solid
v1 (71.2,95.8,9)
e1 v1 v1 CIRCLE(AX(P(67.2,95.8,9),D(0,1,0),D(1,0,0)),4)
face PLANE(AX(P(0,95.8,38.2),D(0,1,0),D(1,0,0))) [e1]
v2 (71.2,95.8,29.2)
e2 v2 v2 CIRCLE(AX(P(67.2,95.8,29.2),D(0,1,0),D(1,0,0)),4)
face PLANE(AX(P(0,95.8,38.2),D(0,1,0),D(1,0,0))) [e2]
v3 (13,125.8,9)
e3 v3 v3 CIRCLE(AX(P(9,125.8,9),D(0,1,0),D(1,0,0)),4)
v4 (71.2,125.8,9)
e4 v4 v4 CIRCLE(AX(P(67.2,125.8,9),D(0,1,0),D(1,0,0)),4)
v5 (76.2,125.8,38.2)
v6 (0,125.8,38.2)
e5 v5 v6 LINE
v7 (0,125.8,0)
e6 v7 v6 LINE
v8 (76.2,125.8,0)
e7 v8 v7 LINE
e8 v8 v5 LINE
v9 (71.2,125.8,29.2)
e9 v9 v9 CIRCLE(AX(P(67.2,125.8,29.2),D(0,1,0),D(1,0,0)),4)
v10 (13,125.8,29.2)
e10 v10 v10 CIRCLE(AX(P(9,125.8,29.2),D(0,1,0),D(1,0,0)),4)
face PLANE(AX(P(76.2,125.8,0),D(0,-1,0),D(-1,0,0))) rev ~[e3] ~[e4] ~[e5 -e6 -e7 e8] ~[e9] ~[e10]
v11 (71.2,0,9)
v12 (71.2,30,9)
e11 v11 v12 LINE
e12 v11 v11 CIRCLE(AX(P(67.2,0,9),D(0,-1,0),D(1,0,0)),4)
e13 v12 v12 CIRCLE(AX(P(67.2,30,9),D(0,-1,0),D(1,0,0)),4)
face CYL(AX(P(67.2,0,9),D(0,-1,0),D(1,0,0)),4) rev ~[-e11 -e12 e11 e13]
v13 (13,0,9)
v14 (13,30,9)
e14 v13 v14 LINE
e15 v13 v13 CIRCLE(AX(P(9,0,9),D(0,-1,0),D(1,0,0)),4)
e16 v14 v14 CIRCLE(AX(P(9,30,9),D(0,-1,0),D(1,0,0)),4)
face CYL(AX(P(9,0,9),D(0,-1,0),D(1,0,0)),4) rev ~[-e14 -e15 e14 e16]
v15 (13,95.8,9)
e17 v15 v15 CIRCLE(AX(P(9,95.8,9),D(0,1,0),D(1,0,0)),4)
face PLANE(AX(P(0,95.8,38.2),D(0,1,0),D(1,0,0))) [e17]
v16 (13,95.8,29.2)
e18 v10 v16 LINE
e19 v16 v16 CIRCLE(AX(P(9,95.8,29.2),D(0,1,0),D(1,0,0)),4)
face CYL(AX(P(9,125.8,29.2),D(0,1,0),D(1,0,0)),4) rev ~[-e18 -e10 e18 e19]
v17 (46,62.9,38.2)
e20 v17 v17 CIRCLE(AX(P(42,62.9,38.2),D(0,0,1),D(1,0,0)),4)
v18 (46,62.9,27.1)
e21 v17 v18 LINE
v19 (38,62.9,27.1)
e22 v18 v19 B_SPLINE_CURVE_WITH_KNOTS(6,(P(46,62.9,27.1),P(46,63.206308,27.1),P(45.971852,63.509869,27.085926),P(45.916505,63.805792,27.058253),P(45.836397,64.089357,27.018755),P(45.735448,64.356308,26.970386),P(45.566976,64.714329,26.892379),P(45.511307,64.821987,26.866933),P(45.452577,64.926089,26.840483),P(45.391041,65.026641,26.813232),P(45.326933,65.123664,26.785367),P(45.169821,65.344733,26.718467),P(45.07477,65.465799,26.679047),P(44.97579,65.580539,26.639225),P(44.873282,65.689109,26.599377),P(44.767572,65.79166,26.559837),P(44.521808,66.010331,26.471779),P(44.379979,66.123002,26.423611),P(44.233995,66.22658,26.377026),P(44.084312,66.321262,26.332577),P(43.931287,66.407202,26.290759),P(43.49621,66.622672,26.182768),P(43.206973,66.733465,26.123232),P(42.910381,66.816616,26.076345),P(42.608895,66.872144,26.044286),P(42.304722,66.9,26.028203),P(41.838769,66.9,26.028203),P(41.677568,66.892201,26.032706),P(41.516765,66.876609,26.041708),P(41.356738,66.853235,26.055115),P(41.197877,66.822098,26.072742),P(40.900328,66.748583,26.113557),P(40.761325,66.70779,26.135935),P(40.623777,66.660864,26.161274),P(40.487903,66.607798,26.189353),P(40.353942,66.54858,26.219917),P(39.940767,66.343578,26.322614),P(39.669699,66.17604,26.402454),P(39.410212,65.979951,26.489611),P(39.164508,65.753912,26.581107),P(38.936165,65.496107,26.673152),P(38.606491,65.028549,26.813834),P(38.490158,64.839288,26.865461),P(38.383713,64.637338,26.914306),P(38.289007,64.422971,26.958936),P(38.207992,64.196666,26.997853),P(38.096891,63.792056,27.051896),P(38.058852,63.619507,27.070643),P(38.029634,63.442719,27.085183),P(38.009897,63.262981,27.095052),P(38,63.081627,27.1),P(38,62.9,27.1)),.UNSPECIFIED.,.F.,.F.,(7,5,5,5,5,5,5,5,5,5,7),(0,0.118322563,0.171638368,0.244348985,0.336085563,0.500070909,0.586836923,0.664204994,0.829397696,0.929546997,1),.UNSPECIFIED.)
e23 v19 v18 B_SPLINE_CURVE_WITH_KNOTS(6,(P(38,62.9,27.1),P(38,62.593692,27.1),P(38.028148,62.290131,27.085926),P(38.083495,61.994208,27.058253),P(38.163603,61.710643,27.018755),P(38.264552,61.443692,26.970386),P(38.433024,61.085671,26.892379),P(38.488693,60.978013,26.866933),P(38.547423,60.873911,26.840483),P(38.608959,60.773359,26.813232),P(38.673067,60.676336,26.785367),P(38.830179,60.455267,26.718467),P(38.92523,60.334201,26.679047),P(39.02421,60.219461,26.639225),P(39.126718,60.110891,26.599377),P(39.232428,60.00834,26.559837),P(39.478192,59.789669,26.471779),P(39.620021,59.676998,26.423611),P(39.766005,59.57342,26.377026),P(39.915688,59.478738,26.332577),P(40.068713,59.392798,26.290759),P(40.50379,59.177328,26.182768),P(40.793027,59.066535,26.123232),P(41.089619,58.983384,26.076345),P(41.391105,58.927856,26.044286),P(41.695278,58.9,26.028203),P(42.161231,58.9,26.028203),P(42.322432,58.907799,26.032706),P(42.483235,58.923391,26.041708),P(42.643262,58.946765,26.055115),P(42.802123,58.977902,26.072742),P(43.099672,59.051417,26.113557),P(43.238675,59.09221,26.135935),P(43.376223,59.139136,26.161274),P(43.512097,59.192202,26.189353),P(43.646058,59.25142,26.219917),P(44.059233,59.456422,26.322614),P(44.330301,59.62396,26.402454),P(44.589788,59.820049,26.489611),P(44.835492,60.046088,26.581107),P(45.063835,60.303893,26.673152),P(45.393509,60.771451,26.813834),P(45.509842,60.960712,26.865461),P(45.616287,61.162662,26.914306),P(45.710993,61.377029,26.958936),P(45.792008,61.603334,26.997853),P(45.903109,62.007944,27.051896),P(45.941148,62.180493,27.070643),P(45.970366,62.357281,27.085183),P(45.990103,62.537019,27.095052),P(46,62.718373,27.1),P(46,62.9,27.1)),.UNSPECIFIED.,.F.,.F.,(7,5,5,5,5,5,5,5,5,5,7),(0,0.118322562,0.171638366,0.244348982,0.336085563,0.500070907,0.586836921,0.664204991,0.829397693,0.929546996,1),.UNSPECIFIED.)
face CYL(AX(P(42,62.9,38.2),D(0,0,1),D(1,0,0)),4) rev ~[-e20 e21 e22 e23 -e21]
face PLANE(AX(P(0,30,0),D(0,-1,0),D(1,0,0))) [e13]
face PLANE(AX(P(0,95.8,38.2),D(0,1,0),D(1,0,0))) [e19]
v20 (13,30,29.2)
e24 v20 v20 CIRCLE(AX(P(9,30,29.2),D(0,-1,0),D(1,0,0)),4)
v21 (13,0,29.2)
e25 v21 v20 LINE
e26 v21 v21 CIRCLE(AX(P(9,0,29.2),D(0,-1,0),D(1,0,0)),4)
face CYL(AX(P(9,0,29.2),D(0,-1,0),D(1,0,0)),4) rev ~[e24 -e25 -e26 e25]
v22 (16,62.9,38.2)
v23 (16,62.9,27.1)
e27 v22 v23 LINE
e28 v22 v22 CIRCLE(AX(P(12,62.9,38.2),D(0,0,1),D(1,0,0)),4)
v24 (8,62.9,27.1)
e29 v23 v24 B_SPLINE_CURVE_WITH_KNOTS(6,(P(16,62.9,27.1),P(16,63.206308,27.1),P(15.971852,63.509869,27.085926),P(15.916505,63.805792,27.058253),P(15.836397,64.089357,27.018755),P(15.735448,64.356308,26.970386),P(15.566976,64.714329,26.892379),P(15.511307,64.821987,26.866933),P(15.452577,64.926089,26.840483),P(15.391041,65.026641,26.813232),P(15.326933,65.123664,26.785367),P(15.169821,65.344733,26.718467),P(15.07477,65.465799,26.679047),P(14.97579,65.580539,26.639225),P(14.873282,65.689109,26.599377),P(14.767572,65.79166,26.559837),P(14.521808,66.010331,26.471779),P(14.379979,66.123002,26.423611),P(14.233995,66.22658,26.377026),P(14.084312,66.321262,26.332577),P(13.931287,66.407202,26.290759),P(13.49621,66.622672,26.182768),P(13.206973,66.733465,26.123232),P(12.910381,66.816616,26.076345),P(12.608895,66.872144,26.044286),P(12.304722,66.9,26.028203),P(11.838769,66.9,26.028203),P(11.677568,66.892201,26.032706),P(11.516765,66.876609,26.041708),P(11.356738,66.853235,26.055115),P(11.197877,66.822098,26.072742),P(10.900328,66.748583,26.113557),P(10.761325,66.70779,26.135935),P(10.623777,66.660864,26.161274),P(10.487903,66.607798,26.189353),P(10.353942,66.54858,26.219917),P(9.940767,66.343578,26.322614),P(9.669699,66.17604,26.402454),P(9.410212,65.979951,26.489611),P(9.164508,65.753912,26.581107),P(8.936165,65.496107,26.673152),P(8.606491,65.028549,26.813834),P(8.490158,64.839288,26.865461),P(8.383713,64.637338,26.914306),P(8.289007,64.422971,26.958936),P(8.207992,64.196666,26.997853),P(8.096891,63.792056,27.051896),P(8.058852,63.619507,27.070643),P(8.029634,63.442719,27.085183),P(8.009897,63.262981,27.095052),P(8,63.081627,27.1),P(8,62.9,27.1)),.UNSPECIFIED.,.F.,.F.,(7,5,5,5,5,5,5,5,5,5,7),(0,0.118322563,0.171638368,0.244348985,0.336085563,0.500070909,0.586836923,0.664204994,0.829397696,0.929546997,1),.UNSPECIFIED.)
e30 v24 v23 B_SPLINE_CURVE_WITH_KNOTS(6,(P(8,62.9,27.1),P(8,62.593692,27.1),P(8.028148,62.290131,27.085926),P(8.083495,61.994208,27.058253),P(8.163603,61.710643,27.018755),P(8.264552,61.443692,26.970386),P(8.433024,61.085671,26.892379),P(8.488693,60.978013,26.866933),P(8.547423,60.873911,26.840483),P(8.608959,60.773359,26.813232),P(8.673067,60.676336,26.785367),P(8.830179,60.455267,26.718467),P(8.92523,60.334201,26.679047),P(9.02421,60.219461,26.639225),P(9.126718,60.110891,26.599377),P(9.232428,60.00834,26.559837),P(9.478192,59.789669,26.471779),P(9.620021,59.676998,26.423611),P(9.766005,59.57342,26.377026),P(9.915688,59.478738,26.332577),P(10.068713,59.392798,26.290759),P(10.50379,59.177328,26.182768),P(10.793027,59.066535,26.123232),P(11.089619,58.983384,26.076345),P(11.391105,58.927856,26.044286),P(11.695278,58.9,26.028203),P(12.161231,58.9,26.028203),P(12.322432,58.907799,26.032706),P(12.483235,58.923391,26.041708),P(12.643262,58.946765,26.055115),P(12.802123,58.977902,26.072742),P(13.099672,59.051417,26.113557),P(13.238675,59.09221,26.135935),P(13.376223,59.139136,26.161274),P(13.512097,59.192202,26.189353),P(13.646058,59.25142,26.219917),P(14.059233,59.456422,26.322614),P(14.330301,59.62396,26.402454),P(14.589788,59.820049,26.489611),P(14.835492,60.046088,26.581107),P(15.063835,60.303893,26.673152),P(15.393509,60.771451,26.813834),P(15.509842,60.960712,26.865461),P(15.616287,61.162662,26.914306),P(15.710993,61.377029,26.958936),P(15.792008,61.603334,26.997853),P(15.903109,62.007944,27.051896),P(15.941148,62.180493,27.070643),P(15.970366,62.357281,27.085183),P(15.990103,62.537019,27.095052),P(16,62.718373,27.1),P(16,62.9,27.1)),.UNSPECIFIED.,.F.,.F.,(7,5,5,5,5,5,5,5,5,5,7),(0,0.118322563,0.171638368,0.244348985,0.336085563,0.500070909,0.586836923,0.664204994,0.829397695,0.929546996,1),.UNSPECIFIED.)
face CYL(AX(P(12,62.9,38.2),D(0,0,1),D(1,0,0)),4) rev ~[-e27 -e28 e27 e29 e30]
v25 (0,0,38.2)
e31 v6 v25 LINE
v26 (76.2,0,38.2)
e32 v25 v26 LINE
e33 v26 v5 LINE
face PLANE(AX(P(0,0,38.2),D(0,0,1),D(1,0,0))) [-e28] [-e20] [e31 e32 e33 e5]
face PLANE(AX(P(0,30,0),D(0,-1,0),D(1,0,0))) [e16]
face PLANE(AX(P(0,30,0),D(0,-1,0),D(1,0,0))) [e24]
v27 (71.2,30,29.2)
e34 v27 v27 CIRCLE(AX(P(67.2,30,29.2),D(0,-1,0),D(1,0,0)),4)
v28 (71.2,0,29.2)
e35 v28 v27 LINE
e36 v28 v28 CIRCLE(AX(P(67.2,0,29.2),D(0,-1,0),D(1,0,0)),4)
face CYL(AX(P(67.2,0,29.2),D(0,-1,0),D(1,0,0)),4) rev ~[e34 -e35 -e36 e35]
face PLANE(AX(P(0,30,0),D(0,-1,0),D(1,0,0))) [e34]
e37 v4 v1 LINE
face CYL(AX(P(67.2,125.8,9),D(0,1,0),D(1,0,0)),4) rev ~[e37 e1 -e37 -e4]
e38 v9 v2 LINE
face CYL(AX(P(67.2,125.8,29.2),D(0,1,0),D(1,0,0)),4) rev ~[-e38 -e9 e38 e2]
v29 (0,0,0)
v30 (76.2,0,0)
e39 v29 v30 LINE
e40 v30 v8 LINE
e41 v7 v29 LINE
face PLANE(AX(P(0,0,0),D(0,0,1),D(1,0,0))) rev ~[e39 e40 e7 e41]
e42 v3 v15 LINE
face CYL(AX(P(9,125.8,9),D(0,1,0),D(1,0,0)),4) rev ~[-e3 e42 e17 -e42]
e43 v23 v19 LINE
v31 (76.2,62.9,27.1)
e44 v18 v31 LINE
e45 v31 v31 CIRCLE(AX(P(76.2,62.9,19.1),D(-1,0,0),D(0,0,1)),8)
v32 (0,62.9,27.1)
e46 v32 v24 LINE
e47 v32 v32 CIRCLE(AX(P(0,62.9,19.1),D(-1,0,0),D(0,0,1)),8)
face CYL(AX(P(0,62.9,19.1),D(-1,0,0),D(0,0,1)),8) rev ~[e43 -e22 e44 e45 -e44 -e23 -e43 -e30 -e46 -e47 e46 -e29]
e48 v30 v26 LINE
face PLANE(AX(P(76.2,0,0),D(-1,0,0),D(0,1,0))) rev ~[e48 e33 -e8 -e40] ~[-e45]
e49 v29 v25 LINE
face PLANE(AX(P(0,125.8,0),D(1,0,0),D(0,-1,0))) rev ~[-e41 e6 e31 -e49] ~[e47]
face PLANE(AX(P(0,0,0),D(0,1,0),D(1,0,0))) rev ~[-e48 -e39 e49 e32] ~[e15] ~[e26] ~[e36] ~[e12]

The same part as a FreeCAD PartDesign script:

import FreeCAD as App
import Part
import Sketcher

V = App.Vector

doc = App.newDocument("Part")
body = doc.addObject("PartDesign::Body", "Body")

# Sketch on XY plane
sketch1 = body.newObject("Sketcher::SketchObject", "Sketch")
sketch1.AttachmentSupport = (doc.getObject("XY_Plane"), [""])
sketch1.MapMode = "FlatFace"
sketch1.addGeometry([
    Part.LineSegment(V(0, 126, 0), V(0, 0, 0)),
    Part.LineSegment(V(0, 0, 0), V(76, 0, 0)),
    Part.LineSegment(V(76, 0, 0), V(76, 126, 0)),
    Part.LineSegment(V(76, 126, 0), V(0, 126, 0)),
], False)
sketch1.addConstraint([
    Sketcher.Constraint("Coincident", 0, 2, 1, 1),
    Sketcher.Constraint("Coincident", 1, 2, 2, 1),
    Sketcher.Constraint("Coincident", 2, 2, 3, 1),
    Sketcher.Constraint("Coincident", 3, 2, 0, 1),
    Sketcher.Constraint("Vertical", 0),
    Sketcher.Constraint("Horizontal", 1),
    Sketcher.Constraint("Vertical", 2),
    Sketcher.Constraint("Horizontal", 3),
    Sketcher.Constraint("Coincident", 0, 2, -1, 1),
    Sketcher.Constraint("DistanceX", 1, 1, 1, 2, 76.2),
    Sketcher.Constraint("DistanceY", 0, 2, 0, 1, 125.8),
])
pad1 = body.newObject("PartDesign::Pad", "Pad")
pad1.Profile = sketch1
pad1.Length = 38.2

# Sketch on XY plane
sketch2 = body.newObject("Sketcher::SketchObject", "Sketch001")
sketch2.AttachmentSupport = (doc.getObject("XY_Plane"), [""])
sketch2.MapMode = "FlatFace"
sketch2.AttachmentOffset = App.Placement(V(0, 0, 38.2), App.Rotation())
sketch2.addGeometry([
    Part.Circle(V(12, 62.9, 0), V(0, 0, 1), 4),
    Part.Circle(V(42, 62.9, 0), V(0, 0, 1), 4),
], False)
sketch2.addConstraint([
    Sketcher.Constraint("Equal", 0, 1),
    Sketcher.Constraint("Horizontal", 0, 3, 1, 3),
    Sketcher.Constraint("Diameter", 0, 8.0),
    Sketcher.Constraint("DistanceX", -1, 1, 0, 3, 12.0),
    Sketcher.Constraint("DistanceX", -1, 1, 1, 3, 42.0),
    Sketcher.Constraint("DistanceY", -1, 1, 0, 3, 62.9),
])
pocket1 = body.newObject("PartDesign::Pocket", "Pocket")
pocket1.Profile = sketch2
pocket1.Length = 19.1

# Sketch on YZ plane
sketch3 = body.newObject("Sketcher::SketchObject", "Sketch002")
sketch3.AttachmentSupport = (doc.getObject("YZ_Plane"), [""])
sketch3.MapMode = "FlatFace"
sketch3.addGeometry(Part.Circle(V(63, 19, 0), V(0, 0, 1), 8), False)
sketch3.addConstraint([
    Sketcher.Constraint("Diameter", 0, 16.0),
    Sketcher.Constraint("DistanceX", -1, 1, 0, 3, 62.9),
    Sketcher.Constraint("DistanceY", -1, 1, 0, 3, 19.1),
])
pocket2 = body.newObject("PartDesign::Pocket", "Pocket001")
pocket2.Profile = sketch3
pocket2.Type = "UpToFirst"
pocket2.Reversed = True

# Sketch on XZ plane
sketch4 = body.newObject("Sketcher::SketchObject", "Sketch003")
sketch4.AttachmentSupport = (doc.getObject("XZ_Plane"), [""])
sketch4.MapMode = "FlatFace"
sketch4.addGeometry([
    Part.Circle(V(9, 29.2, 0), V(0, 0, 1), 4),
    Part.Circle(V(9, 9, 0), V(0, 0, 1), 4),
    Part.Circle(V(67.2, 29.2, 0), V(0, 0, 1), 4),
    Part.Circle(V(67.2, 9, 0), V(0, 0, 1), 4),
], False)
sketch4.addConstraint([
    Sketcher.Constraint("Equal", 0, 1),
    Sketcher.Constraint("Equal", 1, 2),
    Sketcher.Constraint("Equal", 2, 3),
    Sketcher.Constraint("Horizontal", 0, 3, 2, 3),
    Sketcher.Constraint("Horizontal", 1, 3, 3, 3),
    Sketcher.Constraint("Vertical", 0, 3, 1, 3),
    Sketcher.Constraint("Vertical", 2, 3, 3, 3),
    Sketcher.Constraint("Diameter", 0, 8.0),
    Sketcher.Constraint("DistanceX", -1, 1, 0, 3, 9.0),
    Sketcher.Constraint("DistanceY", -1, 1, 1, 3, 9.0),
    Sketcher.Constraint("DistanceY", 1, 3, 0, 3, 20.2),
    Sketcher.Constraint("DistanceX", 0, 3, 2, 3, 58.2),
])
pocket3 = body.newObject("PartDesign::Pocket", "Pocket002")
pocket3.Profile = sketch4
pocket3.Length = 30

# Sketch on XZ plane
sketch5 = body.newObject("Sketcher::SketchObject", "Sketch004")
sketch5.AttachmentSupport = (doc.getObject("XZ_Plane"), [""])
sketch5.MapMode = "FlatFace"
sketch5.AttachmentOffset = App.Placement(V(0, 0, -125.8), App.Rotation())
sketch5.addGeometry([
    Part.Circle(V(67.2, 9, 0), V(0, 0, 1), 4),
    Part.Circle(V(67.2, 29.2, 0), V(0, 0, 1), 4),
    Part.Circle(V(9, 9, 0), V(0, 0, 1), 4),
    Part.Circle(V(9, 29.2, 0), V(0, 0, 1), 4),
], False)
sketch5.addConstraint([
    Sketcher.Constraint("Equal", 0, 1),
    Sketcher.Constraint("Equal", 1, 2),
    Sketcher.Constraint("Equal", 2, 3),
    Sketcher.Constraint("Horizontal", 0, 3, 2, 3),
    Sketcher.Constraint("Horizontal", 1, 3, 3, 3),
    Sketcher.Constraint("Vertical", 0, 3, 1, 3),
    Sketcher.Constraint("Vertical", 2, 3, 3, 3),
    Sketcher.Constraint("Diameter", 0, 8.0),
    Sketcher.Constraint("DistanceY", -1, 1, 0, 3, 9.0),
    Sketcher.Constraint("DistanceX", -1, 1, 2, 3, 9.0),
    Sketcher.Constraint("DistanceY", 0, 3, 1, 3, 20.2),
    Sketcher.Constraint("DistanceX", 2, 3, 0, 3, 58.2),
])
pocket4 = body.newObject("PartDesign::Pocket", "Pocket003")
pocket4.Profile = sketch5
pocket4.Length = 30
pocket4.Reversed = True

doc.recompute()
